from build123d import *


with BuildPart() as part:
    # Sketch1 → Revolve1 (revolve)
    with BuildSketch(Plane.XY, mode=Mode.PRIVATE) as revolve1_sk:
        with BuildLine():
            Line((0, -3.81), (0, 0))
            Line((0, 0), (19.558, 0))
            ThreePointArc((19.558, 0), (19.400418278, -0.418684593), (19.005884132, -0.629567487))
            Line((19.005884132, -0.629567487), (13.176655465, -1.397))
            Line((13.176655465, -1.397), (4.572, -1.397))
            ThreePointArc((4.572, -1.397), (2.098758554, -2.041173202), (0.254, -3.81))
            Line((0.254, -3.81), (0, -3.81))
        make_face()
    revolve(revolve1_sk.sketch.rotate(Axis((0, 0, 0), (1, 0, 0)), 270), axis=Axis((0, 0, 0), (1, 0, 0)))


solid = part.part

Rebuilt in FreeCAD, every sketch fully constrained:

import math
import FreeCAD as App
import Part
import Sketcher
from FreeCAD import Vector
Q = App.Units.Quantity

doc = App.newDocument("Part")
body = doc.addObject("PartDesign::Body", "Body")

# Sketch on XY plane
sketch1 = doc.addObject("Sketcher::SketchObject", "Sketch")
body.addObject(sketch1)
sketch1.AttachmentSupport = (doc.XY_Plane, [""])
sketch1.MapMode = "FlatFace"
sketch1.addGeometry(Part.LineSegment(Vector(0, 0, 0), Vector(0, -3.81, 0)), False)
sketch1.addGeometry(Part.LineSegment(Vector(0, -3.81, 0), Vector(0.25, -3.81, 0)), False)
sketch1.addGeometry(Part.ArcOfCircle(Part.Circle(Vector(4.57, -6.47, 0), Vector(0, 0, 1), 5.07), math.radians(90), math.radians(148)), False)
sketch1.addGeometry(Part.LineSegment(Vector(4.57, -1.4, 0), Vector(13.18, -1.4, 0)), False)
sketch1.addGeometry(Part.LineSegment(Vector(13.18, -1.4, 0), Vector(19.01, -0.63, 0)), False)
sketch1.addGeometry(Part.ArcOfCircle(Part.Circle(Vector(18.92, 0, 0), Vector(0, 0, 1), 0.63), math.radians(-83), math.radians(0)), False)
sketch1.addGeometry(Part.LineSegment(Vector(19.56, 0, 0), Vector(0, 0, 0)), False)
sketch1.addConstraint(Sketcher.Constraint("Coincident", 0, 2, 1, 1))
sketch1.addConstraint(Sketcher.Constraint("Coincident", 1, 2, 2, 2))
sketch1.addConstraint(Sketcher.Constraint("Tangent", 2, 1, 3, 1))
sketch1.addConstraint(Sketcher.Constraint("Coincident", 3, 2, 4, 1))
sketch1.addConstraint(Sketcher.Constraint("Tangent", 4, 2, 5, 1))
sketch1.addConstraint(Sketcher.Constraint("Coincident", 5, 2, 6, 1))
sketch1.addConstraint(Sketcher.Constraint("Coincident", 6, 2, 0, 1))
sketch1.addConstraint(Sketcher.Constraint("Vertical", 0))
sketch1.addConstraint(Sketcher.Constraint("Horizontal", 1))
sketch1.addConstraint(Sketcher.Constraint("Horizontal", 3))
sketch1.addConstraint(Sketcher.Constraint("Horizontal", 6))
sketch1.addConstraint(Sketcher.Constraint("Coincident", 6, 2, -1, 1))
sketch1.addConstraint(Sketcher.Constraint("PointOnObject", 5, 3, -1))
sketch1.addConstraint(Sketcher.Constraint("Radius", 5, Q("0.025 in")))
sketch1.addConstraint(Sketcher.Constraint("DistanceX", 1, 1, 1, 2, Q("0.01 in")))
sketch1.addConstraint(Sketcher.Constraint("DistanceX", 6, 2, 6, 1, Q("0.77 in")))
sketch1.addConstraint(Sketcher.Constraint("DistanceY", 0, 2, 0, 1, Q("0.15 in")))
sketch1.addConstraint(Sketcher.Constraint("Angle", 4, Q("7.5 deg")))
sketch1.addConstraint(Sketcher.Constraint("DistanceX", -1, 1, 2, 3, Q("0.18 in")))
sketch1.addConstraint(Sketcher.Constraint("DistanceY", 2, 1, -1, 1, Q("0.055 in")))
revolution = doc.addObject("PartDesign::Revolution", "Revolution")
body.addObject(revolution)
revolution.Profile = sketch1
revolution.ReferenceAxis = (sketch1, ["H_Axis"])
revolution.Angle = 360

doc.recompute()
